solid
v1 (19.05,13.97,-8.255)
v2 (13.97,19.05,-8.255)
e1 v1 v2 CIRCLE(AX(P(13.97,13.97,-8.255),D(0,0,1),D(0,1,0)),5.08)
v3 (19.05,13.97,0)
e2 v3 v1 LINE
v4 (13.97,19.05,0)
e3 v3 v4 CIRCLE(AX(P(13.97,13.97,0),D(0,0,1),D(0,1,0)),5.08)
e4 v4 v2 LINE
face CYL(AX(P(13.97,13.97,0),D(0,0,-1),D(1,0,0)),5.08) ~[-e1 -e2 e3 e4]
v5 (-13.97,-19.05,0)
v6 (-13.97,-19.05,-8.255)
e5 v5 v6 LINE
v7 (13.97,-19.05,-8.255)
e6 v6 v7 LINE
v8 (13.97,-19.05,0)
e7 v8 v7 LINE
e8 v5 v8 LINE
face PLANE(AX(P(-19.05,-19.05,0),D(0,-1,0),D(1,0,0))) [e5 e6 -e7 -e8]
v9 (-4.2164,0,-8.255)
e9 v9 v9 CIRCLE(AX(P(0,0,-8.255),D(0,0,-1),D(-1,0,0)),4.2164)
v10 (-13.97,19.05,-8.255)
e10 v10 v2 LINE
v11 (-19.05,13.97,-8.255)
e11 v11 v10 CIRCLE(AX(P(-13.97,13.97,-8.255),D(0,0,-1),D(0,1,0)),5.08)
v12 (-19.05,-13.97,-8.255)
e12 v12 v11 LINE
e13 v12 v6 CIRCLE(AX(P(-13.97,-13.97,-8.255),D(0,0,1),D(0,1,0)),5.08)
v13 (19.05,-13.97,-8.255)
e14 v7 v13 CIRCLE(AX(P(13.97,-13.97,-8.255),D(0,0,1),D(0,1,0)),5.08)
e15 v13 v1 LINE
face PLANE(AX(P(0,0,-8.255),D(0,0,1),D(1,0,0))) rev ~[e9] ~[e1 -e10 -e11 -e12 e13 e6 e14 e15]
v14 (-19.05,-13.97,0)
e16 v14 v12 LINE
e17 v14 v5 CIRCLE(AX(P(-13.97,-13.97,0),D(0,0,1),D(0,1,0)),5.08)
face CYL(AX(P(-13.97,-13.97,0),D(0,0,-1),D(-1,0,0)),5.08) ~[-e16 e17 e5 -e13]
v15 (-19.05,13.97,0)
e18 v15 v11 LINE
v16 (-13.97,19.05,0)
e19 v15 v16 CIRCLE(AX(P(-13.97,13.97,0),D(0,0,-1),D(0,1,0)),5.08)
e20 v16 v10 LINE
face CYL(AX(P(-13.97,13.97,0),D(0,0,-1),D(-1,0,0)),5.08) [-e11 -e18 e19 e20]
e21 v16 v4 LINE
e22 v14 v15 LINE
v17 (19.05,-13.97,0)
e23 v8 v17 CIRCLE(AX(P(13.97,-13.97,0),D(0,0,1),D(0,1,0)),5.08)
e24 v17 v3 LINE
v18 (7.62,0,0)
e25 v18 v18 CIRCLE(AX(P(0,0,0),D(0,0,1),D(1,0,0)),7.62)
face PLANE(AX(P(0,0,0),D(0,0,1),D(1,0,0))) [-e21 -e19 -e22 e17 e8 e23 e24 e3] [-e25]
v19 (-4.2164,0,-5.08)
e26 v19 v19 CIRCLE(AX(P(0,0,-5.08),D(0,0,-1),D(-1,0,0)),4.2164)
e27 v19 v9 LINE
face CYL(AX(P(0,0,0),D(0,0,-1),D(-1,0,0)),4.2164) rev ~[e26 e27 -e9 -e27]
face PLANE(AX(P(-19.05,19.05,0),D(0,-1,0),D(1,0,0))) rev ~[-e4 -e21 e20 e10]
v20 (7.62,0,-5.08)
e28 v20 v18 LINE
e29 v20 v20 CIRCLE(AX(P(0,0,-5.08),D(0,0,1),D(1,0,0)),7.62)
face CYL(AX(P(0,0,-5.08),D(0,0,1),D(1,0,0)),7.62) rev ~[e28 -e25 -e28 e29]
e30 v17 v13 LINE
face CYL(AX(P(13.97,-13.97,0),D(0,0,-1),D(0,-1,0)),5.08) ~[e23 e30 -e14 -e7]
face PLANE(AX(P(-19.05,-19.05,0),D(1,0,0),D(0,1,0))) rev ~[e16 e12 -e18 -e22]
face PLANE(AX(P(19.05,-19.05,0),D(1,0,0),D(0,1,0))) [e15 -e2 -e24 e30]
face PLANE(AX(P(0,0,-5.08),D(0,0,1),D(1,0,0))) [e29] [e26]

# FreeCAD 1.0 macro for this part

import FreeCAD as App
import Part
import Sketcher
from FreeCAD import Vector
Q = App.Units.Quantity


def edges_at(feature, points):
    """Names of the edges that pass closest to the given points."""
    edges = feature.Shape.Edges
    near = lambda p: min(range(len(edges)), key=lambda i: edges[i].distToShape(Part.Vertex(*p))[0])
    return sorted({f"Edge{near(p) + 1}" for p in points})

doc = App.newDocument("Part")
params = doc.addObject("Spreadsheet::Sheet", "Params")
for row, (alias, value) in enumerate([
    ("sketch1_width", "1.5 in"),
    ("pad1_length", "0.325 in"),
    ("fillet_radius", "0.2 in"),
    ("sketch2_diameter", "0.332 in"),
    ("hole_diameter", "0.332 in"),
    ("hole_cbore_diameter", "0.6 in"),
    ("hole_cbore_depth", "0.2 in"),
], start=1):
    params.set(f"A{row}", alias)
    params.set(f"B{row}", "=" + value)
    params.setAlias(f"B{row}", alias)

body = doc.addObject("PartDesign::Body", "Body")

sketch1 = body.newObject("Sketcher::SketchObject", "Sketch")
sketch1.AttachmentSupport = (doc.getObject("XY_Plane"), [""])
sketch1.MapMode = "FlatFace"
sketch1.addGeometry([
    Part.LineSegment(Vector(-19, 19, 0), Vector(-19, -19, 0)),
    Part.LineSegment(Vector(-19, -19, 0), Vector(19, -19, 0)),
    Part.LineSegment(Vector(19, -19, 0), Vector(19, 19, 0)),
    Part.LineSegment(Vector(19, 19, 0), Vector(-19, 19, 0)),
], False)
sketch1.addConstraint([
    Sketcher.Constraint("Coincident", 0, 2, 1, 1),
    Sketcher.Constraint("Coincident", 1, 2, 2, 1),
    Sketcher.Constraint("Coincident", 2, 2, 3, 1),
    Sketcher.Constraint("Coincident", 3, 2, 0, 1),
    Sketcher.Constraint("Vertical", 0),
    Sketcher.Constraint("Horizontal", 1),
    Sketcher.Constraint("Vertical", 2),
    Sketcher.Constraint("Horizontal", 3),
    Sketcher.Constraint("Symmetric", 0, 2, 2, 2, -1, 1),
    Sketcher.Constraint("Equal", 3, 0),
    Sketcher.Constraint("DistanceX", 1, 1, 1, 2, Q("1.5 in")),
])
sketch1.setExpression("Constraints[10]", "Params.sketch1_width")
pad1 = body.newObject("PartDesign::Pad", "Pad")
pad1.Profile = sketch1
pad1.setExpression("Length", "Params.pad1_length")
pad1.Reversed = True
doc.recompute()

fillet = body.newObject("PartDesign::Fillet", "Fillet")
fillet.Base = (pad1, edges_at(pad1, [
    (-19.05, 19.05, -4.128),
    (-19.05, -19.05, -4.128),
    (19.05, -19.05, -4.128),
    (19.05, 19.05, -4.128),
]))
fillet.setExpression("Radius", "Params.fillet_radius")

sketch2 = body.newObject("Sketcher::SketchObject", "Sketch001")
sketch2.AttachmentSupport = (doc.getObject("XY_Plane"), [""])
sketch2.MapMode = "FlatFace"
sketch2.addGeometry(Part.Circle(Vector(0, 0, 0), Vector(0, 0, 1), 4.2), False)
sketch2.addConstraint([
    Sketcher.Constraint("Coincident", 0, 3, -1, 1),
    Sketcher.Constraint("Diameter", 0, Q("0.332 in")),
])
sketch2.setExpression("Constraints[1]", "Params.sketch2_diameter")
doc.recompute()
hole = body.newObject("PartDesign::Hole", "Hole")
hole.Profile = sketch2
hole.ThreadType = "None"
hole.setExpression("Diameter", "Params.hole_diameter")
hole.DepthType = "ThroughAll"
hole.HoleCutType = "Counterbore"
hole.setExpression("HoleCutDiameter", "Params.hole_cbore_diameter")
hole.setExpression("HoleCutDepth", "Params.hole_cbore_depth")

doc.recompute()
